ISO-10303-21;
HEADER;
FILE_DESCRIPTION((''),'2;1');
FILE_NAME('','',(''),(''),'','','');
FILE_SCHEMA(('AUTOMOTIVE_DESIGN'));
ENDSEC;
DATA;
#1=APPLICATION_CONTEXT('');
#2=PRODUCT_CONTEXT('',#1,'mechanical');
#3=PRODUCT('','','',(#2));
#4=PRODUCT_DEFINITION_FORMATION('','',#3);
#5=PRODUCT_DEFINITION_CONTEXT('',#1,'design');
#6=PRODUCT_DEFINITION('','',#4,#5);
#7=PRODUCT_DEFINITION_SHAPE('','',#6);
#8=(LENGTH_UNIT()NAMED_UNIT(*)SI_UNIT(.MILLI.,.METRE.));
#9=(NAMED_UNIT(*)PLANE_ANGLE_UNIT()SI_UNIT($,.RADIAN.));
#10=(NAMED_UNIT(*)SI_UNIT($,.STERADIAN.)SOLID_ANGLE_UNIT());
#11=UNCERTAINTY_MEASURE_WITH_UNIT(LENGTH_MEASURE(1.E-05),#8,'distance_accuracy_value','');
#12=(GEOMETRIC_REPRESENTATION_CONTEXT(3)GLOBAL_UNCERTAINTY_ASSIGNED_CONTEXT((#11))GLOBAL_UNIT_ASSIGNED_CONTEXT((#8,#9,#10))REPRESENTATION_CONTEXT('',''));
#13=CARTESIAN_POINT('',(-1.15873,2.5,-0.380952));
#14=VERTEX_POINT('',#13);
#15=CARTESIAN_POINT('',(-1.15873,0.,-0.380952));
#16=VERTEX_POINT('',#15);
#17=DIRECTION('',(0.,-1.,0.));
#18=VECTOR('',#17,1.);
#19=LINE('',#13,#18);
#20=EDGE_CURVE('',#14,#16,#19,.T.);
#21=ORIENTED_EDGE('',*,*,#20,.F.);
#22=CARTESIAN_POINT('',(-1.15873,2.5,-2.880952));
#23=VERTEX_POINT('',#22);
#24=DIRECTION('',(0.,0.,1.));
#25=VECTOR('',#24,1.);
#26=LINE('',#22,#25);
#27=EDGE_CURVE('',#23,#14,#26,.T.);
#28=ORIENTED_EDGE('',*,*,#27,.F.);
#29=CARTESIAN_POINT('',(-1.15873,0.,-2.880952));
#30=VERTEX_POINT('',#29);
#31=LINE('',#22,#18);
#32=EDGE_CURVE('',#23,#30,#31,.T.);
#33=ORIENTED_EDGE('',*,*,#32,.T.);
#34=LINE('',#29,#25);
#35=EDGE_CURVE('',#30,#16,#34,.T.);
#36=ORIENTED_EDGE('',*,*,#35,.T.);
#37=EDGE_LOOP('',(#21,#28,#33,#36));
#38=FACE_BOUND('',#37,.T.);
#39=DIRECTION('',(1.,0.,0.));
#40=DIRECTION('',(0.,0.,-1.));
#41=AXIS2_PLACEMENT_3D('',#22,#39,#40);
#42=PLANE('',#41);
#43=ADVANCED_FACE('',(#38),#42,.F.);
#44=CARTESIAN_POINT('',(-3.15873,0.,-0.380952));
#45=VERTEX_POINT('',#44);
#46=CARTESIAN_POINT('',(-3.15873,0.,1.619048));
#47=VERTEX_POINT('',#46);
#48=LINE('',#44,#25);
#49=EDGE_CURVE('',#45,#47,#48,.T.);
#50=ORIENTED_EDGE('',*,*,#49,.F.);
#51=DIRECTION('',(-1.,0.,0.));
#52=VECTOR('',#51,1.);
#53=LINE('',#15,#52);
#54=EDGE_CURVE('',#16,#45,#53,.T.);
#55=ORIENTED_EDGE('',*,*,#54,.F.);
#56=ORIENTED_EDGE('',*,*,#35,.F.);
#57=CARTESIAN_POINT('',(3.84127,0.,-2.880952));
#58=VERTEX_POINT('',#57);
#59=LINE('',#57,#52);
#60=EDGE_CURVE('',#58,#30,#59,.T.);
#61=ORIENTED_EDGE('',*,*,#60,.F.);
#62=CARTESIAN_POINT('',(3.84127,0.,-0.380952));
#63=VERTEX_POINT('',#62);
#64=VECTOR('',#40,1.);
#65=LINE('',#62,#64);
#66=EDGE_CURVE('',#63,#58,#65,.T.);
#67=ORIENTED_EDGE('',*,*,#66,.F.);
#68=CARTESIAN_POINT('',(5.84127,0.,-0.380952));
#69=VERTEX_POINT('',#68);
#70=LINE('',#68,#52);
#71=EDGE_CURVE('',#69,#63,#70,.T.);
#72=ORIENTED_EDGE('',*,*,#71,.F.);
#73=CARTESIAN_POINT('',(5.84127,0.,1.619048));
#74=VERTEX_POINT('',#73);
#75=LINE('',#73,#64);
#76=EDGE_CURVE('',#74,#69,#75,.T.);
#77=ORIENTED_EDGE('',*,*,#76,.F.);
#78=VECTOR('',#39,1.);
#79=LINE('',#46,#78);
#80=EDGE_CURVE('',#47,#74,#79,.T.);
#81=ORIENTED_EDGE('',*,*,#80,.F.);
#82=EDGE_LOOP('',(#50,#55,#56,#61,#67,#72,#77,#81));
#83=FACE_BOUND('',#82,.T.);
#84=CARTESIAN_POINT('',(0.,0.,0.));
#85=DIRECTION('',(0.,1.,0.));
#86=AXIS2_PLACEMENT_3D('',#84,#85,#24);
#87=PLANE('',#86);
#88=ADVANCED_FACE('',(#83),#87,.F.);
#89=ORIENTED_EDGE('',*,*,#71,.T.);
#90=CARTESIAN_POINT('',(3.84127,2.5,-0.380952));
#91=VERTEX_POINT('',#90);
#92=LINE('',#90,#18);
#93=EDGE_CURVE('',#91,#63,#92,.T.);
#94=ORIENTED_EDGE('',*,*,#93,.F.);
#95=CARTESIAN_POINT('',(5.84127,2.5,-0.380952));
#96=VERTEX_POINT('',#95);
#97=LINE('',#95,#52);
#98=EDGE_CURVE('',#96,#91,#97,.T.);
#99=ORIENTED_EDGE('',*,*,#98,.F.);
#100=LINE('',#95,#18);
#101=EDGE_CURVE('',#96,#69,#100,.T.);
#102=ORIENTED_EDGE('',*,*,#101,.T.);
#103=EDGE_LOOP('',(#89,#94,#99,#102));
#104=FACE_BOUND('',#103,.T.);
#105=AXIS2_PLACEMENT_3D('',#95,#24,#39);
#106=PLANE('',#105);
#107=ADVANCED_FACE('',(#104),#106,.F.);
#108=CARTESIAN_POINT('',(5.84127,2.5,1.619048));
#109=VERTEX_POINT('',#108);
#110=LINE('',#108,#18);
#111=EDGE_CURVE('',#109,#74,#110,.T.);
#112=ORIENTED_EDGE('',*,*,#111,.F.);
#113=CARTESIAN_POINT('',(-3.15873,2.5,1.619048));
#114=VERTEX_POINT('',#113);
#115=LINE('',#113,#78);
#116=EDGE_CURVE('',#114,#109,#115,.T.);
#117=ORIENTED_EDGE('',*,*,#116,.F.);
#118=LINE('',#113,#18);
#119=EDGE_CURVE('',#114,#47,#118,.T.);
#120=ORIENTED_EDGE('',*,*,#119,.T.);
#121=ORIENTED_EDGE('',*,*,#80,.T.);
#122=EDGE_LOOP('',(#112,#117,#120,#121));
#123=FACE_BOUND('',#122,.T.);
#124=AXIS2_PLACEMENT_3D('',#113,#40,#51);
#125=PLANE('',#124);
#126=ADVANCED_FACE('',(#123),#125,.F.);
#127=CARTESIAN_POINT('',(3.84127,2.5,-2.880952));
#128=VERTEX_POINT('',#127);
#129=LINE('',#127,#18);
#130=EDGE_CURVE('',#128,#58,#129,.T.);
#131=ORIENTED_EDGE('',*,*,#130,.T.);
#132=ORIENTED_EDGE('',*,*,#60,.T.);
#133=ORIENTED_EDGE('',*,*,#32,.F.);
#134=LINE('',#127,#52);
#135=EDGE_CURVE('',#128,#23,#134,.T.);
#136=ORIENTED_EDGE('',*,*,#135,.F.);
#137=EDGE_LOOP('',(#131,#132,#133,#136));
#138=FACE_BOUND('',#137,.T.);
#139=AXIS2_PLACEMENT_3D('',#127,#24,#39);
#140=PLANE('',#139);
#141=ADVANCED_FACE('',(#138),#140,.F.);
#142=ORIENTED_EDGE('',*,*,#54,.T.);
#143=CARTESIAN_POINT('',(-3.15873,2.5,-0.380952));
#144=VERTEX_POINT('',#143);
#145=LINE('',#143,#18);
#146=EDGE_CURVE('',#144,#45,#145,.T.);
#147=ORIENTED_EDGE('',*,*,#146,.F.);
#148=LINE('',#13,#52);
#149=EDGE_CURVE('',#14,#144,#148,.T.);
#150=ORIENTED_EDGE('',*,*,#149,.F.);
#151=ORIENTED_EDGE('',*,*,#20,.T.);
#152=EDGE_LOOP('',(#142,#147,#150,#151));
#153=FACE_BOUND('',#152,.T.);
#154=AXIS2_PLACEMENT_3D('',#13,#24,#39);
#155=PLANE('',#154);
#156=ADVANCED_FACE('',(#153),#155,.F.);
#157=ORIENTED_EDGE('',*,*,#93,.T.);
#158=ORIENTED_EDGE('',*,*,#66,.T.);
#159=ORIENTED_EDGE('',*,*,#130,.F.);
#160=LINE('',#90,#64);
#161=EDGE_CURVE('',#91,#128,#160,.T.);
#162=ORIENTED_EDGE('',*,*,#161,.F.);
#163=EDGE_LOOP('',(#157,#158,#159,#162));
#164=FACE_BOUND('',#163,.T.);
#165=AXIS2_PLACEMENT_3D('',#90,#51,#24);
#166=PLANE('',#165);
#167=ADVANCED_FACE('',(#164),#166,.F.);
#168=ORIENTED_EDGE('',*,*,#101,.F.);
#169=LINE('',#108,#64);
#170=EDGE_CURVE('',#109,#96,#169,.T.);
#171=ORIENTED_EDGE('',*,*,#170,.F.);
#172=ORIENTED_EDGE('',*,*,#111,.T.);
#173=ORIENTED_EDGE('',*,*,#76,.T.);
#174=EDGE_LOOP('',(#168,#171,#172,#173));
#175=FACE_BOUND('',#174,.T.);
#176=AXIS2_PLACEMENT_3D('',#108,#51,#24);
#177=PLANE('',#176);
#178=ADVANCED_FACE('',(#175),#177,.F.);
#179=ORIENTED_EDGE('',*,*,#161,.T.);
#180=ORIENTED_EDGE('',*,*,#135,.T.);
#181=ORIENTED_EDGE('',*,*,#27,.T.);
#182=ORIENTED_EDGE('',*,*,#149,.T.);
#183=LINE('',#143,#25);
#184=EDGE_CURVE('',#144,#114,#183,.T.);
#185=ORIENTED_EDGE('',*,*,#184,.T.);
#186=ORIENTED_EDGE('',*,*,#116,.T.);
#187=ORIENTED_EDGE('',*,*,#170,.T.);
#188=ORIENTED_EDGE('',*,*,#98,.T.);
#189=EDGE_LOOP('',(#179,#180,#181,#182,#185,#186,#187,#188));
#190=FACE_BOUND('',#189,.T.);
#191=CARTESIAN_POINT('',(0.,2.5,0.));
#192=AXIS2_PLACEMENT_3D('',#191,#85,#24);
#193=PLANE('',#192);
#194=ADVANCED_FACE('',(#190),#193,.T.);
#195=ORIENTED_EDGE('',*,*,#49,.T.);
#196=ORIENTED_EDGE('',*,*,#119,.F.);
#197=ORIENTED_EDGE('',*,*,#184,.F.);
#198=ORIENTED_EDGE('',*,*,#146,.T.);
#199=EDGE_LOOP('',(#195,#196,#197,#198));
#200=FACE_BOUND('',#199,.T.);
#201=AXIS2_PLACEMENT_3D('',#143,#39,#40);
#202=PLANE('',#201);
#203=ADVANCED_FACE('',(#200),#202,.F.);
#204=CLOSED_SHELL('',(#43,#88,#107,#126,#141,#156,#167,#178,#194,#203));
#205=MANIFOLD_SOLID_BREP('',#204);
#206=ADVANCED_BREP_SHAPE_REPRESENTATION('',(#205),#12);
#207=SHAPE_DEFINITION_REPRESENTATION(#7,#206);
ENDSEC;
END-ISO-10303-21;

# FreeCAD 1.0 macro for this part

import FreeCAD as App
import Part
import Sketcher
from FreeCAD import Vector

doc = App.newDocument("Part")
body = doc.addObject("PartDesign::Body", "Body")

# Sketch on XZ plane
sketch1 = body.newObject("Sketcher::SketchObject", "Sketch")
sketch1.AttachmentSupport = (doc.getObject("XZ_Plane"), [""])
sketch1.MapMode = "FlatFace"
sketch1.addGeometry(Part.LineSegment(Vector(-3.2, 1.6, 0), Vector(5.8, 1.6, 0)), False)
sketch1.addGeometry(Part.LineSegment(Vector(5.8, 1.6, 0), Vector(5.8, -0.4, 0)), False)
sketch1.addGeometry(Part.LineSegment(Vector(5.8, -0.4, 0), Vector(3.8, -0.4, 0)), False)
sketch1.addGeometry(Part.LineSegment(Vector(3.8, -0.4, 0), Vector(3.8, -2.9, 0)), False)
sketch1.addGeometry(Part.LineSegment(Vector(3.8, -2.9, 0), Vector(-1.2, -2.9, 0)), False)
sketch1.addGeometry(Part.LineSegment(Vector(-1.2, -2.9, 0), Vector(-1.2, -0.4, 0)), False)
sketch1.addGeometry(Part.LineSegment(Vector(-1.2, -0.4, 0), Vector(-3.2, -0.4, 0)), False)
sketch1.addGeometry(Part.LineSegment(Vector(-3.2, -0.4, 0), Vector(-3.2, 1.6, 0)), False)
sketch1.addConstraint(Sketcher.Constraint("Coincident", 0, 2, 1, 1))
sketch1.addConstraint(Sketcher.Constraint("Coincident", 1, 2, 2, 1))
sketch1.addConstraint(Sketcher.Constraint("Coincident", 2, 2, 3, 1))
sketch1.addConstraint(Sketcher.Constraint("Coincident", 3, 2, 4, 1))
sketch1.addConstraint(Sketcher.Constraint("Coincident", 4, 2, 5, 1))
sketch1.addConstraint(Sketcher.Constraint("Coincident", 5, 2, 6, 1))
sketch1.addConstraint(Sketcher.Constraint("Coincident", 6, 2, 7, 1))
sketch1.addConstraint(Sketcher.Constraint("Coincident", 7, 2, 0, 1))
sketch1.addConstraint(Sketcher.Constraint("Horizontal", 0))
sketch1.addConstraint(Sketcher.Constraint("Vertical", 1))
sketch1.addConstraint(Sketcher.Constraint("Horizontal", 2))
sketch1.addConstraint(Sketcher.Constraint("Vertical", 3))
sketch1.addConstraint(Sketcher.Constraint("Horizontal", 4))
sketch1.addConstraint(Sketcher.Constraint("Vertical", 5))
sketch1.addConstraint(Sketcher.Constraint("Horizontal", 6))
sketch1.addConstraint(Sketcher.Constraint("Vertical", 7))
sketch1.addConstraint(Sketcher.Constraint("Horizontal", 2, 2, 5, 2))
sketch1.addConstraint(Sketcher.Constraint("Equal", 2, 6))
sketch1.addConstraint(Sketcher.Constraint("Equal", 6, 1))
sketch1.addConstraint(Sketcher.Constraint("DistanceX", 0, 1, 0, 2, 9.0))
sketch1.addConstraint(Sketcher.Constraint("DistanceX", 2, 2, 2, 1, 2.0))
sketch1.addConstraint(Sketcher.Constraint("DistanceY", 3, 2, 3, 1, 2.5))
sketch1.addConstraint(Sketcher.Constraint("DistanceX", -1, 1, 0, 2, 5.84127))
sketch1.addConstraint(Sketcher.Constraint("DistanceY", -1, 1, 0, 2, 1.619048))
pad1 = body.newObject("PartDesign::Pad", "Pad")
pad1.Profile = sketch1
pad1.Length = 2.5
pad1.Reversed = True

doc.recompute()
